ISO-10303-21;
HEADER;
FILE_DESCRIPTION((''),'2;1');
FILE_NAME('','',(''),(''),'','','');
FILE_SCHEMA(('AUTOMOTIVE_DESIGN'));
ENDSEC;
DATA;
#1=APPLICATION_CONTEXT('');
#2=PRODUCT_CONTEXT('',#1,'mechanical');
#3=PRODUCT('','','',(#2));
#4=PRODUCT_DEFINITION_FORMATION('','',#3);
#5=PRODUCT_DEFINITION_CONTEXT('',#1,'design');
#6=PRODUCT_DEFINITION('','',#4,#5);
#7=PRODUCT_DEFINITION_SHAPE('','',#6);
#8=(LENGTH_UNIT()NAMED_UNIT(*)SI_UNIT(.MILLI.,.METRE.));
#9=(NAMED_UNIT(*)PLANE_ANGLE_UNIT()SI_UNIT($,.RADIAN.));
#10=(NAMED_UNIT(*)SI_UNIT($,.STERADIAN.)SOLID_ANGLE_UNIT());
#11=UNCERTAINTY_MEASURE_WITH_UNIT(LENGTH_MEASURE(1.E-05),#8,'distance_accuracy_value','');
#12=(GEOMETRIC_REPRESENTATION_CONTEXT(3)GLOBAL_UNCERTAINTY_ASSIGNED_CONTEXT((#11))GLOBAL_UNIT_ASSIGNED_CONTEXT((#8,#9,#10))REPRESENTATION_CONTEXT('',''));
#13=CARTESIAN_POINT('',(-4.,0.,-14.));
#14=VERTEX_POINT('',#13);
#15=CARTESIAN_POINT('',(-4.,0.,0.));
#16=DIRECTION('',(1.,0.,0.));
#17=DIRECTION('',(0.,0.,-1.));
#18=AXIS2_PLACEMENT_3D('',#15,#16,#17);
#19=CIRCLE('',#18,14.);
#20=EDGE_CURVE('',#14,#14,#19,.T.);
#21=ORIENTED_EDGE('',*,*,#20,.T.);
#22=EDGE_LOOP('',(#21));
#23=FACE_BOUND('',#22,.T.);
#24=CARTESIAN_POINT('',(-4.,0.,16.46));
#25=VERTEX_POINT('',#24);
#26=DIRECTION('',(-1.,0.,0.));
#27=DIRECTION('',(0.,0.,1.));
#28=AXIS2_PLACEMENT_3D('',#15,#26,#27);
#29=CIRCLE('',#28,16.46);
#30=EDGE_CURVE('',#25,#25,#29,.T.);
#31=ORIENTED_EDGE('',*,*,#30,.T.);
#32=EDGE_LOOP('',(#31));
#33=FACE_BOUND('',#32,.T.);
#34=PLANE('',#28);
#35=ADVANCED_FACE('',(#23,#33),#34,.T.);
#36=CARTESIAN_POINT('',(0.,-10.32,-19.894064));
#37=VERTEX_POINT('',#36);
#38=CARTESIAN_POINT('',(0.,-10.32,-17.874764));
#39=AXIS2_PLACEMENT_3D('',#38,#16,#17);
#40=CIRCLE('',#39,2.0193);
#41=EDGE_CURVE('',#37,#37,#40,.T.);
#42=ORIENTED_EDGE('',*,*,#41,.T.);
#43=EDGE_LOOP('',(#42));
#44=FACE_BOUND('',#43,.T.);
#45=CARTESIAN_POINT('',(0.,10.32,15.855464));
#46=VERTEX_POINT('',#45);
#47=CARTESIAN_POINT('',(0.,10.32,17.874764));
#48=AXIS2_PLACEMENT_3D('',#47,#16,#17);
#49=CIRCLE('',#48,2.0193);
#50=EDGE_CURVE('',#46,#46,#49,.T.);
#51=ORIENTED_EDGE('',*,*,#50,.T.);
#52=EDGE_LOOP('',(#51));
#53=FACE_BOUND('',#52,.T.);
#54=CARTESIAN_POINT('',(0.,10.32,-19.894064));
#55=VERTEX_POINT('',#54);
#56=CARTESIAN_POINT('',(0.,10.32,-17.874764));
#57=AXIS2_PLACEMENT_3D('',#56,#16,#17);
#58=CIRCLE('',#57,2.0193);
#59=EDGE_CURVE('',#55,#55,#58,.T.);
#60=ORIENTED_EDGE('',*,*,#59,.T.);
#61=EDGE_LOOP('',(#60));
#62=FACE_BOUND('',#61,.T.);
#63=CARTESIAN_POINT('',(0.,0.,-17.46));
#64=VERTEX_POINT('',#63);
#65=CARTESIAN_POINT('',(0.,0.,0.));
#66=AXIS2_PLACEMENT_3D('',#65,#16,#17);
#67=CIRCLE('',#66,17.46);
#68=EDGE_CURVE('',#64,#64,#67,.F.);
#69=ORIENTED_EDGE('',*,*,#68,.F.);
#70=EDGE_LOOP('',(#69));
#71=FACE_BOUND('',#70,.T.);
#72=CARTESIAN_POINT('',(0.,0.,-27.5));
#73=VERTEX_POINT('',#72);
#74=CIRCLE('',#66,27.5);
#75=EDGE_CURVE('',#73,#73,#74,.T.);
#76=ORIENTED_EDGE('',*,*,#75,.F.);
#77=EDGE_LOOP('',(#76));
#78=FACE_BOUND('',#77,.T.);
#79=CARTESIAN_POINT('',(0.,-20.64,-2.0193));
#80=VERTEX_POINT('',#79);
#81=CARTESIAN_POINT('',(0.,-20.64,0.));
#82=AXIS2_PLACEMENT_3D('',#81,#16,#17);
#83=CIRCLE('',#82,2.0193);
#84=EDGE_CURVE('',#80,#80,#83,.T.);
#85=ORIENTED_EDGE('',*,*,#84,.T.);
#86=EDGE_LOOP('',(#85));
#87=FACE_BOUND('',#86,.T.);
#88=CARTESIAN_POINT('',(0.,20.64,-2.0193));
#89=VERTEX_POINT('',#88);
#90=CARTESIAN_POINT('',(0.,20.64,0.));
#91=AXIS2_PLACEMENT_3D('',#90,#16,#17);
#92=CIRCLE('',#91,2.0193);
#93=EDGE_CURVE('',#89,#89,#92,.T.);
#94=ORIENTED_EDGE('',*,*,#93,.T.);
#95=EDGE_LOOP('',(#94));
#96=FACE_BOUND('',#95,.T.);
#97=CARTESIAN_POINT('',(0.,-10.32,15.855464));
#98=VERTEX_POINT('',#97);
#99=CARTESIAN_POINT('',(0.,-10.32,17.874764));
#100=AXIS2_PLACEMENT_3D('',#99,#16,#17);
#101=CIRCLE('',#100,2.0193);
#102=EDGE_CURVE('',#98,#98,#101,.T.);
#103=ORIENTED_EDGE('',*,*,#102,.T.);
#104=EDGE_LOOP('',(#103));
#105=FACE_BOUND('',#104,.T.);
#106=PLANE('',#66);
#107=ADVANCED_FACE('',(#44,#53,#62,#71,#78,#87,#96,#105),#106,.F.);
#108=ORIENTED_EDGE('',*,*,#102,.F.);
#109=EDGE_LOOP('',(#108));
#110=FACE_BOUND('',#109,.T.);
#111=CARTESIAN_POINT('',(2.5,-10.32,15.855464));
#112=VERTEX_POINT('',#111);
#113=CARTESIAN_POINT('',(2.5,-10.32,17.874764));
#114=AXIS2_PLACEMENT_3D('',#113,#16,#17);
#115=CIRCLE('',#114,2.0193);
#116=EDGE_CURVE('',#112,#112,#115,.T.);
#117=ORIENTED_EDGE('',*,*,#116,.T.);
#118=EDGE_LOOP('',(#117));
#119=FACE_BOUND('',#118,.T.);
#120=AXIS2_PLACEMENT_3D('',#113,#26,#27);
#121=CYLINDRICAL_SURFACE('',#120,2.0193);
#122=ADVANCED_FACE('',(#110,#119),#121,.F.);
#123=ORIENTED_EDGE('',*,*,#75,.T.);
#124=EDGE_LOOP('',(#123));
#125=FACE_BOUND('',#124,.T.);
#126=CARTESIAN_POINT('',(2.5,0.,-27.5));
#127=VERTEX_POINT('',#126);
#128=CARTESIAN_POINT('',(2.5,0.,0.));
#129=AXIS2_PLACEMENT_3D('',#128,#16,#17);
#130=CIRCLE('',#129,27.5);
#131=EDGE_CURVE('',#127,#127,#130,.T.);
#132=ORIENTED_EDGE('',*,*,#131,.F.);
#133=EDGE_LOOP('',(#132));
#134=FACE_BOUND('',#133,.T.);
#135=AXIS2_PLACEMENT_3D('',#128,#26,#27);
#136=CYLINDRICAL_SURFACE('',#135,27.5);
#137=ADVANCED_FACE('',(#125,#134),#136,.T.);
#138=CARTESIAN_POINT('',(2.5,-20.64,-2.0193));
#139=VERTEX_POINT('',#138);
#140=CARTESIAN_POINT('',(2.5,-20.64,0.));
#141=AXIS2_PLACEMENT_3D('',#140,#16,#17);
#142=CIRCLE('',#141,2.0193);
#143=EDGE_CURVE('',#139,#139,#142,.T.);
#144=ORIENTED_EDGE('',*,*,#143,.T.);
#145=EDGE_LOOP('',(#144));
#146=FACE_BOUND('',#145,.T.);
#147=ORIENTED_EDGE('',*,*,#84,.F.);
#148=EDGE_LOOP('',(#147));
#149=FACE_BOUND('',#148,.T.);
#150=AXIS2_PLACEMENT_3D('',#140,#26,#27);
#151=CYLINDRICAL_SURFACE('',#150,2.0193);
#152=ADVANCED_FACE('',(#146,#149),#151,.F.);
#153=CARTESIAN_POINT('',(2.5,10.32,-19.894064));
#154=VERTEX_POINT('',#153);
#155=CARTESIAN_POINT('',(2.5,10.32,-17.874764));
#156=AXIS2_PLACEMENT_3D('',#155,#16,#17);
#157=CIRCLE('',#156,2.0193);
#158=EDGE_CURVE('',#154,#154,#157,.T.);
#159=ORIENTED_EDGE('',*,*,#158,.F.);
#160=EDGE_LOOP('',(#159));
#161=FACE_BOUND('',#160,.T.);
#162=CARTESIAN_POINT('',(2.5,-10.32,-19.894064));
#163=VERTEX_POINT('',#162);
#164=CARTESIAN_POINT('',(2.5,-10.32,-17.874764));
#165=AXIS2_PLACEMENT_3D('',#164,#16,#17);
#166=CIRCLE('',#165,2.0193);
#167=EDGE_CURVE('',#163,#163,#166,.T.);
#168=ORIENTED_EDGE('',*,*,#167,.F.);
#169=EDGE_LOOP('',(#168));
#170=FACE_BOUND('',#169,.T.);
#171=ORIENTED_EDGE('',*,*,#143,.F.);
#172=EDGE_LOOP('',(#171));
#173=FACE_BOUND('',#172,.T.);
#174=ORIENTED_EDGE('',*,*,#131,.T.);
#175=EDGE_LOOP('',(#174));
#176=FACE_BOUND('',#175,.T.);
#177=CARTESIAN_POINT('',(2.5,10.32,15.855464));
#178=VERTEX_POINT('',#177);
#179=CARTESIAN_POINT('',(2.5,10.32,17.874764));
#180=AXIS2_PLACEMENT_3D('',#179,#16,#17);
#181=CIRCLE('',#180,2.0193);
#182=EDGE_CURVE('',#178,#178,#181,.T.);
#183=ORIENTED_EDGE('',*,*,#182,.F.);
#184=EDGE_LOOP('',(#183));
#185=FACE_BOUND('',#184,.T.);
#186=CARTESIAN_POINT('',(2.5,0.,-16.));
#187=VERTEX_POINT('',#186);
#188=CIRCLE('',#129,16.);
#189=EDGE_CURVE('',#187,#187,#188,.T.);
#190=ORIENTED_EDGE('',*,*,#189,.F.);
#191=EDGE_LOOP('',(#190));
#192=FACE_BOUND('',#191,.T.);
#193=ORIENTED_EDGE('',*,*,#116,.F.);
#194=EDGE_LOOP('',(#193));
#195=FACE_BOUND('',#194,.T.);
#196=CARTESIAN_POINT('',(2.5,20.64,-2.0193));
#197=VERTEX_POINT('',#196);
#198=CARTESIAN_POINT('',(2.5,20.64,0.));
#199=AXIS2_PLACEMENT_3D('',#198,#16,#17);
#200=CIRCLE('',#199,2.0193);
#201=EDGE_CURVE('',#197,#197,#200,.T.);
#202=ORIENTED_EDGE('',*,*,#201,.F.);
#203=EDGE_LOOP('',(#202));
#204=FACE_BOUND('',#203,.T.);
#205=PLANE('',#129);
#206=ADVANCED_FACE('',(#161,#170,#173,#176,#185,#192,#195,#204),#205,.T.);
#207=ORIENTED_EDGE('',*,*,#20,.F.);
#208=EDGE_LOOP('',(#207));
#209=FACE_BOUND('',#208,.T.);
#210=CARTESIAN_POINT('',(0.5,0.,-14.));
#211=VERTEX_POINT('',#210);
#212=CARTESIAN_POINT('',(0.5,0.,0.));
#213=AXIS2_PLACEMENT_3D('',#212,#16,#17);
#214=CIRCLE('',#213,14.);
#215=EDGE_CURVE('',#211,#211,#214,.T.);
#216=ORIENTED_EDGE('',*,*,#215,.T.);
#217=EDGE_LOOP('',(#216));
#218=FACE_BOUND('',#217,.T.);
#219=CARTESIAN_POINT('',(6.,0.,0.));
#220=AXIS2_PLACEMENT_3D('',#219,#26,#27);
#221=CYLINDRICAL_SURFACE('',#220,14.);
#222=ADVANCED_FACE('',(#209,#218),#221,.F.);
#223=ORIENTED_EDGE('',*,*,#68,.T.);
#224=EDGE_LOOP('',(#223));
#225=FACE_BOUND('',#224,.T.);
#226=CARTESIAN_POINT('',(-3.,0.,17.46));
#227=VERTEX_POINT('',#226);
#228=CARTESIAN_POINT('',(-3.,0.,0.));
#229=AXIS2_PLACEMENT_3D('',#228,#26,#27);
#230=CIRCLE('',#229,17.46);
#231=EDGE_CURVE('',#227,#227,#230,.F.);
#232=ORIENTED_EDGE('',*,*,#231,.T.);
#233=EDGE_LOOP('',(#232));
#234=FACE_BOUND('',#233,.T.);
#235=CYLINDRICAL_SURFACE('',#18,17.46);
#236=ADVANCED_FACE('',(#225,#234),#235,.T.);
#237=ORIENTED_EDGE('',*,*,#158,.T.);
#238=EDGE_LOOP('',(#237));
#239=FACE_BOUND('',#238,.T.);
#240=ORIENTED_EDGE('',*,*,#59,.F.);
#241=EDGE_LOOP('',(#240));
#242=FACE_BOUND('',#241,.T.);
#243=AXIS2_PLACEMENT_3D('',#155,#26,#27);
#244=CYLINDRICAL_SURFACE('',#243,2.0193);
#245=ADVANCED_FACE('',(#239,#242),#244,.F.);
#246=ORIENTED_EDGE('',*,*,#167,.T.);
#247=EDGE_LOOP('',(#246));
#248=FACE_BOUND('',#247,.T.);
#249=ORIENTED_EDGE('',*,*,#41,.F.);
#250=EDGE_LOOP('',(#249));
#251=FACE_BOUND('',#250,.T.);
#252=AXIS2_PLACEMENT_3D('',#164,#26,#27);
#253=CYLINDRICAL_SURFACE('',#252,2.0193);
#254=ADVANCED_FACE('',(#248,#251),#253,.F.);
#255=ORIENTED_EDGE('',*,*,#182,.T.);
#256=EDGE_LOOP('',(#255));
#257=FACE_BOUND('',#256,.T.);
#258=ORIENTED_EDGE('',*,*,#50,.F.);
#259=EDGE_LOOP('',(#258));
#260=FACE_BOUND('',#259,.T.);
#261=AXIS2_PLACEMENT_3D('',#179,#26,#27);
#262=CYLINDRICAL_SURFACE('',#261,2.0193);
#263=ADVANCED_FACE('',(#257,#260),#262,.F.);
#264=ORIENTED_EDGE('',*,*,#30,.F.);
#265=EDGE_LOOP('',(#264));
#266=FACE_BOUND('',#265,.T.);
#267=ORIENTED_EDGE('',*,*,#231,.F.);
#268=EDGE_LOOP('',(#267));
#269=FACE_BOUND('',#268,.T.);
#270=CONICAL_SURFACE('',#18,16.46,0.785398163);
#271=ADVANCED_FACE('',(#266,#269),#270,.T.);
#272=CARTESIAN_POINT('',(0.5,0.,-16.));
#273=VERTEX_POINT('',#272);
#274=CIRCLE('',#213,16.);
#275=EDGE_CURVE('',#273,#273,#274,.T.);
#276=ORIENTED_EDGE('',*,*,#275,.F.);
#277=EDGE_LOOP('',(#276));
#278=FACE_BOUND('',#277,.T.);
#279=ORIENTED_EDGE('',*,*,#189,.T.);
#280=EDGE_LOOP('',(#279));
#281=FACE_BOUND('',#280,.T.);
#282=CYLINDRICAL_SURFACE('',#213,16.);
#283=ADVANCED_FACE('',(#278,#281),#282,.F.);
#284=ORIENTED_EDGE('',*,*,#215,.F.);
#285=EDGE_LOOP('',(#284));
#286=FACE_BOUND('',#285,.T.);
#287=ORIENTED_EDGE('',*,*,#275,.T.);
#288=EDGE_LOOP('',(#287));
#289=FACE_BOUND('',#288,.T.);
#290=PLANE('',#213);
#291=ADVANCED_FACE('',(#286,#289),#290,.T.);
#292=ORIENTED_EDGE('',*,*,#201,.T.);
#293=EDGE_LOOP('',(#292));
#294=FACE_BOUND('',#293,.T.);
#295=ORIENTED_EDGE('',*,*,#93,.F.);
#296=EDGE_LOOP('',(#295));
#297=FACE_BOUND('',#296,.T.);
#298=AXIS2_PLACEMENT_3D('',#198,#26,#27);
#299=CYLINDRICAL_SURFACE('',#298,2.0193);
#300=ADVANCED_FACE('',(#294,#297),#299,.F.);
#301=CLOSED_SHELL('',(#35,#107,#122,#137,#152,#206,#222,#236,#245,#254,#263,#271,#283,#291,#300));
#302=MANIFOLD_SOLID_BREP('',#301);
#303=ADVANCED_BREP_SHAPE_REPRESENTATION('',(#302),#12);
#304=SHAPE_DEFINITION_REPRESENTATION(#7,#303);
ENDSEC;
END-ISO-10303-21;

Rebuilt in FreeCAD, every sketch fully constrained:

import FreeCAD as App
import Part
import Sketcher

V = App.Vector
Q = App.Units.Quantity


def edges_at(feature, points):
    """Names of the edges that pass closest to the given points."""
    edges = feature.Shape.Edges
    near = lambda p: min(range(len(edges)), key=lambda i: edges[i].distToShape(Part.Vertex(*p))[0])
    return sorted({f"Edge{near(p) + 1}" for p in points})

doc = App.newDocument("Part")
body = doc.addObject("PartDesign::Body", "Body")

# Sketch on YZ plane
sketch1 = doc.addObject("Sketcher::SketchObject", "Sketch")
body.addObject(sketch1)
sketch1.AttachmentSupport = (doc.YZ_Plane, [""])
sketch1.MapMode = "FlatFace"
sketch1.addGeometry(Part.Circle(V(0, 0, 0), V(0, 0, 1), 27.5), False)
sketch1.addGeometry(Part.Circle(V(-10.3, 17.9, 0), V(0, 0, 1), 2), False)
sketch1.addGeometry(Part.Circle(V(-20.6, 0, 0), V(0, 0, 1), 2), False)
sketch1.addGeometry(Part.Circle(V(-10.3, -17.9, 0), V(0, 0, 1), 2), False)
sketch1.addGeometry(Part.Circle(V(10.3, 17.9, 0), V(0, 0, 1), 2), False)
sketch1.addGeometry(Part.Circle(V(10.3, -17.9, 0), V(0, 0, 1), 2), False)
sketch1.addGeometry(Part.Circle(V(20.6, 0, 0), V(0, 0, 1), 2), False)
sketch1.addConstraint(Sketcher.Constraint("Coincident", 0, 3, -1, 1))
sketch1.addConstraint(Sketcher.Constraint("Equal", 1, 2))
sketch1.addConstraint(Sketcher.Constraint("Equal", 2, 3))
sketch1.addConstraint(Sketcher.Constraint("Equal", 3, 4))
sketch1.addConstraint(Sketcher.Constraint("Equal", 4, 5))
sketch1.addConstraint(Sketcher.Constraint("Equal", 5, 6))
sketch1.addConstraint(Sketcher.Constraint("Symmetric", 3, 3, 4, 3, -1, 1))
sketch1.addConstraint(Sketcher.Constraint("Symmetric", 1, 3, 5, 3, -1, 1))
sketch1.addConstraint(Sketcher.Constraint("Symmetric", 2, 3, 6, 3, -1, 1))
sketch1.addConstraint(Sketcher.Constraint("Symmetric", 1, 3, 4, 3, -2))
sketch1.addConstraint(Sketcher.Constraint("PointOnObject", 2, 3, -1))
sketch1.addConstraint(Sketcher.Constraint("Diameter", 0, Q("55 mm")))
sketch1.addConstraint(Sketcher.Constraint("Diameter", 1, Q("4.0386 mm")))
sketch1.addConstraint(Sketcher.Constraint("DistanceX", 1, 3, -1, 1, Q("10.32 mm")))
sketch1.addConstraint(Sketcher.Constraint("DistanceX", 2, 3, -1, 1, Q("20.64 mm")))
sketch1.addConstraint(Sketcher.Constraint("DistanceY", 3, 3, 1, 3, Q("35.749529 mm")))
pad1 = doc.addObject("PartDesign::Pad", "Pad")
body.addObject(pad1)
pad1.Profile = sketch1
pad1.Length = 2.5

# Sketch on YZ plane
sketch2 = doc.addObject("Sketcher::SketchObject", "Sketch001")
body.addObject(sketch2)
sketch2.AttachmentSupport = (doc.YZ_Plane, [""])
sketch2.MapMode = "FlatFace"
sketch2.addGeometry(Part.Circle(V(0, 0, 0), V(0, 0, 1), 17), False)
sketch2.addConstraint(Sketcher.Constraint("Coincident", 0, 3, -1, 1))
sketch2.addConstraint(Sketcher.Constraint("Diameter", 0, Q("34.92 mm")))
pad2 = doc.addObject("PartDesign::Pad", "Pad001")
body.addObject(pad2)
pad2.Profile = sketch2
pad2.Length = 4
pad2.Reversed = True
doc.recompute()

chamfer = doc.addObject("PartDesign::Chamfer", "Chamfer")
body.addObject(chamfer)
chamfer.Base = (pad2, edges_at(pad2, [(-4, 0, 17.46)]))
chamfer.Size = 1

# Sketch on YZ plane
sketch3 = doc.addObject("Sketcher::SketchObject", "Sketch002")
body.addObject(sketch3)
sketch3.AttachmentSupport = (doc.YZ_Plane, [""])
sketch3.MapMode = "FlatFace"
sketch3.AttachmentOffset = App.Placement(V(0, 0, -4), App.Rotation())
sketch3.addGeometry(Part.Circle(V(0, 0, 0), V(0, 0, 1), 14), False)
sketch3.addConstraint(Sketcher.Constraint("Coincident", 0, 3, -1, 1))
sketch3.addConstraint(Sketcher.Constraint("Diameter", 0, Q("28 mm")))
pocket1 = doc.addObject("PartDesign::Pocket", "Pocket")
body.addObject(pocket1)
pocket1.Profile = sketch3
pocket1.Length = 10
pocket1.Reversed = True

# Sketch on YZ plane
sketch4 = doc.addObject("Sketcher::SketchObject", "Sketch003")
body.addObject(sketch4)
sketch4.AttachmentSupport = (doc.YZ_Plane, [""])
sketch4.MapMode = "FlatFace"
sketch4.AttachmentOffset = App.Placement(V(0, 0, 2.5), App.Rotation())
sketch4.addGeometry(Part.Circle(V(0, 0, 0), V(0, 0, 1), 16), False)
sketch4.addConstraint(Sketcher.Constraint("Coincident", 0, 3, -1, 1))
sketch4.addConstraint(Sketcher.Constraint("Diameter", 0, Q("32 mm")))
pocket2 = doc.addObject("PartDesign::Pocket", "Pocket001")
body.addObject(pocket2)
pocket2.Profile = sketch4
pocket2.Length = 2

doc.recompute()
